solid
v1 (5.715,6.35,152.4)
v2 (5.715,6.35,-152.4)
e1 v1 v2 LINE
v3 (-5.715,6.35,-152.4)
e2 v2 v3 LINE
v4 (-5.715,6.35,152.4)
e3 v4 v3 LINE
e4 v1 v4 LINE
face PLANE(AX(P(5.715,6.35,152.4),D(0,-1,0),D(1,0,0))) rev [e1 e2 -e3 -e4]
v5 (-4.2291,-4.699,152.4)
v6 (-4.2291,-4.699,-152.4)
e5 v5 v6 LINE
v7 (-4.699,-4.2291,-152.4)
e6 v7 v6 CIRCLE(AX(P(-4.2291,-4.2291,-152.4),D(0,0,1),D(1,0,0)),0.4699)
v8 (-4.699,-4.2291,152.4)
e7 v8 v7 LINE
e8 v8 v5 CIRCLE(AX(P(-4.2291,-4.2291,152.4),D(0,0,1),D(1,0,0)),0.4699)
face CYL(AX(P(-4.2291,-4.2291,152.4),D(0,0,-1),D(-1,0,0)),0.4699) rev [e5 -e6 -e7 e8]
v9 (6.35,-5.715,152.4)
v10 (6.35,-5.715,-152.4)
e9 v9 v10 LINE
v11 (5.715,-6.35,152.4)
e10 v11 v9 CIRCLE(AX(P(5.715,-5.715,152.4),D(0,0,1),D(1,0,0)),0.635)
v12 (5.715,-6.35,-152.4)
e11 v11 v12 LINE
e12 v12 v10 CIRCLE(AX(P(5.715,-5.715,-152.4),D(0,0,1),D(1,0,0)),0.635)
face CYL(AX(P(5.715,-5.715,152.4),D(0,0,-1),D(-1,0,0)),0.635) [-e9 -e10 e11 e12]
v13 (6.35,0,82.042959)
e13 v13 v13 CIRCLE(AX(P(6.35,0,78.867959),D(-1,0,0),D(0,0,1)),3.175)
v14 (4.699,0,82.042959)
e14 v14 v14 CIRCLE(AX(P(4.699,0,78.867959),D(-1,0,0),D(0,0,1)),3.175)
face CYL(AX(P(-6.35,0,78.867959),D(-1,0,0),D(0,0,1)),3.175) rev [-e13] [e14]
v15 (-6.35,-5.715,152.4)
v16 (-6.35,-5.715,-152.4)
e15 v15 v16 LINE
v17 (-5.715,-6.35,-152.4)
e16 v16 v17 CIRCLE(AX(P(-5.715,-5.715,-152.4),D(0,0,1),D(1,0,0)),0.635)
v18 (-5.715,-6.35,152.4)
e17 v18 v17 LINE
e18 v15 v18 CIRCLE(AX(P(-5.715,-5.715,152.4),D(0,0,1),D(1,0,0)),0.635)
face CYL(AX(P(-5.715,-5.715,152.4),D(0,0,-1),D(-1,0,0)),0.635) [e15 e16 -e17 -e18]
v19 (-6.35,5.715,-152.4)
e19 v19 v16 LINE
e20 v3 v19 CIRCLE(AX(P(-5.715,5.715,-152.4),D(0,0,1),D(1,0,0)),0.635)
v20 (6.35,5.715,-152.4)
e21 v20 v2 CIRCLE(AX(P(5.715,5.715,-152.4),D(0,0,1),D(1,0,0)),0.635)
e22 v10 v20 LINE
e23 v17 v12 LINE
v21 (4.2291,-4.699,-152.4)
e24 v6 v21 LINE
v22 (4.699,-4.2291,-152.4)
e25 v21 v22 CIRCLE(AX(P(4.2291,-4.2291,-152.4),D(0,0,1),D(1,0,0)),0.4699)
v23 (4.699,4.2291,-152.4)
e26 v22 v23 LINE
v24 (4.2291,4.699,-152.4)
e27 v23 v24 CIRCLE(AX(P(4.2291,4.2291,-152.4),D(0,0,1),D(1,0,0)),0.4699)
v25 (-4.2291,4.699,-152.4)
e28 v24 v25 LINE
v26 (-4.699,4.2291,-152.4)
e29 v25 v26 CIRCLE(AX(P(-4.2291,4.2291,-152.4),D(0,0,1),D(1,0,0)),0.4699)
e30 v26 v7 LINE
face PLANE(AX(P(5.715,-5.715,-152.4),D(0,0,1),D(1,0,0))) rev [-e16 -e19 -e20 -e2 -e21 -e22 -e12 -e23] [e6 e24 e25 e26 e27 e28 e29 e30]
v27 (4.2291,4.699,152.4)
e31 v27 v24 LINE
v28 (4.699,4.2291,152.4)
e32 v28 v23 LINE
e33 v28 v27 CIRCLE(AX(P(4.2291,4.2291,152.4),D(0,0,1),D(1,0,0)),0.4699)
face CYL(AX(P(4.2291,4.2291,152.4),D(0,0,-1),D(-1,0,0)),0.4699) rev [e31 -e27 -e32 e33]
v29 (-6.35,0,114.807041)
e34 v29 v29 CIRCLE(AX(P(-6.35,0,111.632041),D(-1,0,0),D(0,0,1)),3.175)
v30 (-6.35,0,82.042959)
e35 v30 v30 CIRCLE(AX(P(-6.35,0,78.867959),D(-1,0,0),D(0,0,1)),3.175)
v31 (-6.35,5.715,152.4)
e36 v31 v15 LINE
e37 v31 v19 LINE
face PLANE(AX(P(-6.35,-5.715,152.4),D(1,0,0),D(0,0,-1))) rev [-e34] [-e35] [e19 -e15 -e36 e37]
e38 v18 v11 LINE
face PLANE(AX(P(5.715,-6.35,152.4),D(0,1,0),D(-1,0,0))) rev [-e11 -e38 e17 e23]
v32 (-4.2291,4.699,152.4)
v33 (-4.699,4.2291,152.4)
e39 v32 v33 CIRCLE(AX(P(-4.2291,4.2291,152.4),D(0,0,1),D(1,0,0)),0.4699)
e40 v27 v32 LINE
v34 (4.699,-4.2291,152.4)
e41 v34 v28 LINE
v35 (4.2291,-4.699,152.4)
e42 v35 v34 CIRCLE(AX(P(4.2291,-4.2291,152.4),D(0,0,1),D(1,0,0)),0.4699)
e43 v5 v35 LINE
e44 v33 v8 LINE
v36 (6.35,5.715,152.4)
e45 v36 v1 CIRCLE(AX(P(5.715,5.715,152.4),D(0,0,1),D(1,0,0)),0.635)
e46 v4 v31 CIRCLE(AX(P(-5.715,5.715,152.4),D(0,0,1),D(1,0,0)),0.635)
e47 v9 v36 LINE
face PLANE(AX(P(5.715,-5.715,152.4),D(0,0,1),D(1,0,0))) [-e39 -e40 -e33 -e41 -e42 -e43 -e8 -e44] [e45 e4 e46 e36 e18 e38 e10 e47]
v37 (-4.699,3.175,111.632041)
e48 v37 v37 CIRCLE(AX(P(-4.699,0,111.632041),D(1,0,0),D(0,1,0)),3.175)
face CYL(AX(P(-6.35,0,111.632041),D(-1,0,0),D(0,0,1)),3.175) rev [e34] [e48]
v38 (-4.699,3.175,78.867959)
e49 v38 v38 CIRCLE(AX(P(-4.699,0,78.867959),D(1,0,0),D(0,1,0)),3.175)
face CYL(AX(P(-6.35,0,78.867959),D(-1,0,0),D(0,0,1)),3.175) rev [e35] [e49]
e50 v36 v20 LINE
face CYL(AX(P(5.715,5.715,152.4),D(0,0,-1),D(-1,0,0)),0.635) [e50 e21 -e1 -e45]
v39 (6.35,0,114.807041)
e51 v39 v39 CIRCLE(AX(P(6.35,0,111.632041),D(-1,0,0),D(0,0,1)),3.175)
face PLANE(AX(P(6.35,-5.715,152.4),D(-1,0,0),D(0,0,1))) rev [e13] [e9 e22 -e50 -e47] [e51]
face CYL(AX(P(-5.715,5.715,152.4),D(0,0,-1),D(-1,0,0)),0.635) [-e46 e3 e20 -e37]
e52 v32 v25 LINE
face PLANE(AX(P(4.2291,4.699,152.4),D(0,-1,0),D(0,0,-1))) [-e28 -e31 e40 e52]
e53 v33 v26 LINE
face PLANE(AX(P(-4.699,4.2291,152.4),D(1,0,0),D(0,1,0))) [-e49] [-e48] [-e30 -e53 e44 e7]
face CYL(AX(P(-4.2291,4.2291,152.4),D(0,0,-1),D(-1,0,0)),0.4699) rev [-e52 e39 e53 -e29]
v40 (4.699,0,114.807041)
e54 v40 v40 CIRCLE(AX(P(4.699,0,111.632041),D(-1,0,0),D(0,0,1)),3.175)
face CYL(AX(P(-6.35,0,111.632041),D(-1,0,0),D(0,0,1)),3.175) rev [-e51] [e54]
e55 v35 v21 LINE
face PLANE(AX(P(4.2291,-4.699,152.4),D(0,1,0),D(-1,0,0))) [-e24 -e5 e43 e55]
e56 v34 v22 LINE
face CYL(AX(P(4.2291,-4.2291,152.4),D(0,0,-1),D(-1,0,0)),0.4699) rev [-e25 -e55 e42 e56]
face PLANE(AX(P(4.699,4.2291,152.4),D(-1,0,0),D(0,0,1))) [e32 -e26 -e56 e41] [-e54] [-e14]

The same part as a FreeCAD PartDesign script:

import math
import FreeCAD as App
import Part
import Sketcher
Q = App.Units.Quantity

doc = App.newDocument("Part")
body = doc.addObject("PartDesign::Body", "Body")

# Sketch on XY plane
sketch1 = body.newObject("Sketcher::SketchObject", "Sketch")
sketch1.AttachmentSupport = (doc.getObject("XY_Plane"), [""])
sketch1.MapMode = "FlatFace"
sketch1.addGeometry([
    Part.LineSegment(App.Vector(6.35, -5.71, 0), App.Vector(6.35, 5.71, 0)),  # 0
    Part.ArcOfCircle(Part.Circle(App.Vector(5.71, 5.71, 0), App.Vector(0, 0, 1), 0.64), math.radians(0), math.radians(90)),  # 1
    Part.LineSegment(App.Vector(5.71, 6.35, 0), App.Vector(-5.71, 6.35, 0)),  # 2
    Part.ArcOfCircle(Part.Circle(App.Vector(-5.71, 5.71, 0), App.Vector(0, 0, 1), 0.64), math.radians(90), math.radians(180)),  # 3
    Part.LineSegment(App.Vector(-6.35, 5.71, 0), App.Vector(-6.35, -5.71, 0)),  # 4
    Part.ArcOfCircle(Part.Circle(App.Vector(-5.71, -5.71, 0), App.Vector(0, 0, 1), 0.64), math.radians(180), math.radians(270)),  # 5
    Part.LineSegment(App.Vector(-5.71, -6.35, 0), App.Vector(5.71, -6.35, 0)),  # 6
    Part.ArcOfCircle(Part.Circle(App.Vector(5.71, -5.71, 0), App.Vector(0, 0, 1), 0.64), math.radians(-90), math.radians(0)),  # 7
    Part.ArcOfCircle(Part.Circle(App.Vector(4.23, 4.23, 0), App.Vector(0, 0, 1), 0.47), math.radians(0), math.radians(90)),  # 8
    Part.LineSegment(App.Vector(4.7, 4.23, 0), App.Vector(4.7, -4.23, 0)),  # 9
    Part.ArcOfCircle(Part.Circle(App.Vector(4.23, -4.23, 0), App.Vector(0, 0, 1), 0.47), math.radians(-90), math.radians(0)),  # 10
    Part.LineSegment(App.Vector(4.23, -4.7, 0), App.Vector(-4.23, -4.7, 0)),  # 11
    Part.ArcOfCircle(Part.Circle(App.Vector(-4.23, -4.23, 0), App.Vector(0, 0, 1), 0.47), math.radians(-180), math.radians(-90)),  # 12
    Part.LineSegment(App.Vector(-4.7, -4.23, 0), App.Vector(-4.7, 4.23, 0)),  # 13
    Part.ArcOfCircle(Part.Circle(App.Vector(-4.23, 4.23, 0), App.Vector(0, 0, 1), 0.47), math.radians(90), math.radians(180)),  # 14
    Part.LineSegment(App.Vector(-4.23, 4.7, 0), App.Vector(4.23, 4.7, 0)),  # 15
], False)
sketch1.addConstraint([
    Sketcher.Constraint("Tangent", 0, 2, 1, 1),
    Sketcher.Constraint("Tangent", 1, 2, 2, 1),
    Sketcher.Constraint("Tangent", 2, 2, 3, 1),
    Sketcher.Constraint("Tangent", 3, 2, 4, 1),
    Sketcher.Constraint("Tangent", 4, 2, 5, 1),
    Sketcher.Constraint("Tangent", 5, 2, 6, 1),
    Sketcher.Constraint("Tangent", 6, 2, 7, 1),
    Sketcher.Constraint("Tangent", 7, 2, 0, 1),
    Sketcher.Constraint("Tangent", 8, 1, 9, 1),
    Sketcher.Constraint("Tangent", 9, 2, 10, 2),
    Sketcher.Constraint("Tangent", 10, 1, 11, 1),
    Sketcher.Constraint("Tangent", 11, 2, 12, 2),
    Sketcher.Constraint("Tangent", 12, 1, 13, 1),
    Sketcher.Constraint("Tangent", 13, 2, 14, 2),
    Sketcher.Constraint("Tangent", 14, 1, 15, 1),
    Sketcher.Constraint("Tangent", 15, 2, 8, 2),
    Sketcher.Constraint("Vertical", 0),
    Sketcher.Constraint("Horizontal", 2),
    Sketcher.Constraint("Vertical", 4),
    Sketcher.Constraint("Horizontal", 6),
    Sketcher.Constraint("Vertical", 9),
    Sketcher.Constraint("Horizontal", 11),
    Sketcher.Constraint("Vertical", 13),
    Sketcher.Constraint("Horizontal", 15),
    Sketcher.Constraint("Equal", 1, 3),
    Sketcher.Constraint("Equal", 3, 5),
    Sketcher.Constraint("Equal", 5, 7),
    Sketcher.Constraint("Equal", 8, 10),
    Sketcher.Constraint("Equal", 10, 12),
    Sketcher.Constraint("Equal", 12, 14),
    Sketcher.Constraint("Symmetric", 1, 3, 5, 3, -1, 1),
    Sketcher.Constraint("Symmetric", 8, 3, 12, 3, -1, 1),
    Sketcher.Constraint("Equal", 6, 0),
    Sketcher.Constraint("Equal", 15, 9),
    Sketcher.Constraint("Radius", 1, Q("0.025 in")),
    Sketcher.Constraint("DistanceX", 2, 2, 2, 1, Q("0.45 in")),
    Sketcher.Constraint("Radius", 8, Q("0.0185 in")),
    Sketcher.Constraint("DistanceX", 11, 2, 11, 1, Q("0.333 in")),
])
pad1 = body.newObject("PartDesign::Pad", "Pad")
pad1.Profile = sketch1
pad1.Type = "TwoLengths"
pad1.Length = Q("6 in")
pad1.Length2 = Q("6 in")

# Sketch on YZ plane
sketch2 = body.newObject("Sketcher::SketchObject", "Sketch001")
sketch2.AttachmentSupport = (doc.getObject("YZ_Plane"), [""])
sketch2.MapMode = "FlatFace"
sketch2.AttachmentOffset = App.Placement(App.Vector(0, 0, -0.25 * 25.4), App.Rotation())
sketch2.addGeometry([
    Part.Circle(App.Vector(0, 78.9, 0), App.Vector(0, 0, 1), 3.2),
    Part.Circle(App.Vector(0, 111.6, 0), App.Vector(0, 0, 1), 3.2),
], False)
sketch2.addConstraint([
    Sketcher.Constraint("Equal", 0, 1),
    Sketcher.Constraint("PointOnObject", 0, 3, -2),
    Sketcher.Constraint("PointOnObject", 1, 3, -2),
    Sketcher.Constraint("Diameter", 0, Q("0.25 in")),
    Sketcher.Constraint("DistanceY", -1, 1, 0, 3, Q("78.867959 mm")),
    Sketcher.Constraint("DistanceY", -1, 1, 1, 3, Q("111.632041 mm")),
])
doc.recompute()
hole = body.newObject("PartDesign::Hole", "Hole")
hole.Profile = sketch2
hole.ThreadType = "None"
hole.Diameter = Q("0.25 in")
hole.DepthType = "ThroughAll"
hole.Reversed = True

doc.recompute()
